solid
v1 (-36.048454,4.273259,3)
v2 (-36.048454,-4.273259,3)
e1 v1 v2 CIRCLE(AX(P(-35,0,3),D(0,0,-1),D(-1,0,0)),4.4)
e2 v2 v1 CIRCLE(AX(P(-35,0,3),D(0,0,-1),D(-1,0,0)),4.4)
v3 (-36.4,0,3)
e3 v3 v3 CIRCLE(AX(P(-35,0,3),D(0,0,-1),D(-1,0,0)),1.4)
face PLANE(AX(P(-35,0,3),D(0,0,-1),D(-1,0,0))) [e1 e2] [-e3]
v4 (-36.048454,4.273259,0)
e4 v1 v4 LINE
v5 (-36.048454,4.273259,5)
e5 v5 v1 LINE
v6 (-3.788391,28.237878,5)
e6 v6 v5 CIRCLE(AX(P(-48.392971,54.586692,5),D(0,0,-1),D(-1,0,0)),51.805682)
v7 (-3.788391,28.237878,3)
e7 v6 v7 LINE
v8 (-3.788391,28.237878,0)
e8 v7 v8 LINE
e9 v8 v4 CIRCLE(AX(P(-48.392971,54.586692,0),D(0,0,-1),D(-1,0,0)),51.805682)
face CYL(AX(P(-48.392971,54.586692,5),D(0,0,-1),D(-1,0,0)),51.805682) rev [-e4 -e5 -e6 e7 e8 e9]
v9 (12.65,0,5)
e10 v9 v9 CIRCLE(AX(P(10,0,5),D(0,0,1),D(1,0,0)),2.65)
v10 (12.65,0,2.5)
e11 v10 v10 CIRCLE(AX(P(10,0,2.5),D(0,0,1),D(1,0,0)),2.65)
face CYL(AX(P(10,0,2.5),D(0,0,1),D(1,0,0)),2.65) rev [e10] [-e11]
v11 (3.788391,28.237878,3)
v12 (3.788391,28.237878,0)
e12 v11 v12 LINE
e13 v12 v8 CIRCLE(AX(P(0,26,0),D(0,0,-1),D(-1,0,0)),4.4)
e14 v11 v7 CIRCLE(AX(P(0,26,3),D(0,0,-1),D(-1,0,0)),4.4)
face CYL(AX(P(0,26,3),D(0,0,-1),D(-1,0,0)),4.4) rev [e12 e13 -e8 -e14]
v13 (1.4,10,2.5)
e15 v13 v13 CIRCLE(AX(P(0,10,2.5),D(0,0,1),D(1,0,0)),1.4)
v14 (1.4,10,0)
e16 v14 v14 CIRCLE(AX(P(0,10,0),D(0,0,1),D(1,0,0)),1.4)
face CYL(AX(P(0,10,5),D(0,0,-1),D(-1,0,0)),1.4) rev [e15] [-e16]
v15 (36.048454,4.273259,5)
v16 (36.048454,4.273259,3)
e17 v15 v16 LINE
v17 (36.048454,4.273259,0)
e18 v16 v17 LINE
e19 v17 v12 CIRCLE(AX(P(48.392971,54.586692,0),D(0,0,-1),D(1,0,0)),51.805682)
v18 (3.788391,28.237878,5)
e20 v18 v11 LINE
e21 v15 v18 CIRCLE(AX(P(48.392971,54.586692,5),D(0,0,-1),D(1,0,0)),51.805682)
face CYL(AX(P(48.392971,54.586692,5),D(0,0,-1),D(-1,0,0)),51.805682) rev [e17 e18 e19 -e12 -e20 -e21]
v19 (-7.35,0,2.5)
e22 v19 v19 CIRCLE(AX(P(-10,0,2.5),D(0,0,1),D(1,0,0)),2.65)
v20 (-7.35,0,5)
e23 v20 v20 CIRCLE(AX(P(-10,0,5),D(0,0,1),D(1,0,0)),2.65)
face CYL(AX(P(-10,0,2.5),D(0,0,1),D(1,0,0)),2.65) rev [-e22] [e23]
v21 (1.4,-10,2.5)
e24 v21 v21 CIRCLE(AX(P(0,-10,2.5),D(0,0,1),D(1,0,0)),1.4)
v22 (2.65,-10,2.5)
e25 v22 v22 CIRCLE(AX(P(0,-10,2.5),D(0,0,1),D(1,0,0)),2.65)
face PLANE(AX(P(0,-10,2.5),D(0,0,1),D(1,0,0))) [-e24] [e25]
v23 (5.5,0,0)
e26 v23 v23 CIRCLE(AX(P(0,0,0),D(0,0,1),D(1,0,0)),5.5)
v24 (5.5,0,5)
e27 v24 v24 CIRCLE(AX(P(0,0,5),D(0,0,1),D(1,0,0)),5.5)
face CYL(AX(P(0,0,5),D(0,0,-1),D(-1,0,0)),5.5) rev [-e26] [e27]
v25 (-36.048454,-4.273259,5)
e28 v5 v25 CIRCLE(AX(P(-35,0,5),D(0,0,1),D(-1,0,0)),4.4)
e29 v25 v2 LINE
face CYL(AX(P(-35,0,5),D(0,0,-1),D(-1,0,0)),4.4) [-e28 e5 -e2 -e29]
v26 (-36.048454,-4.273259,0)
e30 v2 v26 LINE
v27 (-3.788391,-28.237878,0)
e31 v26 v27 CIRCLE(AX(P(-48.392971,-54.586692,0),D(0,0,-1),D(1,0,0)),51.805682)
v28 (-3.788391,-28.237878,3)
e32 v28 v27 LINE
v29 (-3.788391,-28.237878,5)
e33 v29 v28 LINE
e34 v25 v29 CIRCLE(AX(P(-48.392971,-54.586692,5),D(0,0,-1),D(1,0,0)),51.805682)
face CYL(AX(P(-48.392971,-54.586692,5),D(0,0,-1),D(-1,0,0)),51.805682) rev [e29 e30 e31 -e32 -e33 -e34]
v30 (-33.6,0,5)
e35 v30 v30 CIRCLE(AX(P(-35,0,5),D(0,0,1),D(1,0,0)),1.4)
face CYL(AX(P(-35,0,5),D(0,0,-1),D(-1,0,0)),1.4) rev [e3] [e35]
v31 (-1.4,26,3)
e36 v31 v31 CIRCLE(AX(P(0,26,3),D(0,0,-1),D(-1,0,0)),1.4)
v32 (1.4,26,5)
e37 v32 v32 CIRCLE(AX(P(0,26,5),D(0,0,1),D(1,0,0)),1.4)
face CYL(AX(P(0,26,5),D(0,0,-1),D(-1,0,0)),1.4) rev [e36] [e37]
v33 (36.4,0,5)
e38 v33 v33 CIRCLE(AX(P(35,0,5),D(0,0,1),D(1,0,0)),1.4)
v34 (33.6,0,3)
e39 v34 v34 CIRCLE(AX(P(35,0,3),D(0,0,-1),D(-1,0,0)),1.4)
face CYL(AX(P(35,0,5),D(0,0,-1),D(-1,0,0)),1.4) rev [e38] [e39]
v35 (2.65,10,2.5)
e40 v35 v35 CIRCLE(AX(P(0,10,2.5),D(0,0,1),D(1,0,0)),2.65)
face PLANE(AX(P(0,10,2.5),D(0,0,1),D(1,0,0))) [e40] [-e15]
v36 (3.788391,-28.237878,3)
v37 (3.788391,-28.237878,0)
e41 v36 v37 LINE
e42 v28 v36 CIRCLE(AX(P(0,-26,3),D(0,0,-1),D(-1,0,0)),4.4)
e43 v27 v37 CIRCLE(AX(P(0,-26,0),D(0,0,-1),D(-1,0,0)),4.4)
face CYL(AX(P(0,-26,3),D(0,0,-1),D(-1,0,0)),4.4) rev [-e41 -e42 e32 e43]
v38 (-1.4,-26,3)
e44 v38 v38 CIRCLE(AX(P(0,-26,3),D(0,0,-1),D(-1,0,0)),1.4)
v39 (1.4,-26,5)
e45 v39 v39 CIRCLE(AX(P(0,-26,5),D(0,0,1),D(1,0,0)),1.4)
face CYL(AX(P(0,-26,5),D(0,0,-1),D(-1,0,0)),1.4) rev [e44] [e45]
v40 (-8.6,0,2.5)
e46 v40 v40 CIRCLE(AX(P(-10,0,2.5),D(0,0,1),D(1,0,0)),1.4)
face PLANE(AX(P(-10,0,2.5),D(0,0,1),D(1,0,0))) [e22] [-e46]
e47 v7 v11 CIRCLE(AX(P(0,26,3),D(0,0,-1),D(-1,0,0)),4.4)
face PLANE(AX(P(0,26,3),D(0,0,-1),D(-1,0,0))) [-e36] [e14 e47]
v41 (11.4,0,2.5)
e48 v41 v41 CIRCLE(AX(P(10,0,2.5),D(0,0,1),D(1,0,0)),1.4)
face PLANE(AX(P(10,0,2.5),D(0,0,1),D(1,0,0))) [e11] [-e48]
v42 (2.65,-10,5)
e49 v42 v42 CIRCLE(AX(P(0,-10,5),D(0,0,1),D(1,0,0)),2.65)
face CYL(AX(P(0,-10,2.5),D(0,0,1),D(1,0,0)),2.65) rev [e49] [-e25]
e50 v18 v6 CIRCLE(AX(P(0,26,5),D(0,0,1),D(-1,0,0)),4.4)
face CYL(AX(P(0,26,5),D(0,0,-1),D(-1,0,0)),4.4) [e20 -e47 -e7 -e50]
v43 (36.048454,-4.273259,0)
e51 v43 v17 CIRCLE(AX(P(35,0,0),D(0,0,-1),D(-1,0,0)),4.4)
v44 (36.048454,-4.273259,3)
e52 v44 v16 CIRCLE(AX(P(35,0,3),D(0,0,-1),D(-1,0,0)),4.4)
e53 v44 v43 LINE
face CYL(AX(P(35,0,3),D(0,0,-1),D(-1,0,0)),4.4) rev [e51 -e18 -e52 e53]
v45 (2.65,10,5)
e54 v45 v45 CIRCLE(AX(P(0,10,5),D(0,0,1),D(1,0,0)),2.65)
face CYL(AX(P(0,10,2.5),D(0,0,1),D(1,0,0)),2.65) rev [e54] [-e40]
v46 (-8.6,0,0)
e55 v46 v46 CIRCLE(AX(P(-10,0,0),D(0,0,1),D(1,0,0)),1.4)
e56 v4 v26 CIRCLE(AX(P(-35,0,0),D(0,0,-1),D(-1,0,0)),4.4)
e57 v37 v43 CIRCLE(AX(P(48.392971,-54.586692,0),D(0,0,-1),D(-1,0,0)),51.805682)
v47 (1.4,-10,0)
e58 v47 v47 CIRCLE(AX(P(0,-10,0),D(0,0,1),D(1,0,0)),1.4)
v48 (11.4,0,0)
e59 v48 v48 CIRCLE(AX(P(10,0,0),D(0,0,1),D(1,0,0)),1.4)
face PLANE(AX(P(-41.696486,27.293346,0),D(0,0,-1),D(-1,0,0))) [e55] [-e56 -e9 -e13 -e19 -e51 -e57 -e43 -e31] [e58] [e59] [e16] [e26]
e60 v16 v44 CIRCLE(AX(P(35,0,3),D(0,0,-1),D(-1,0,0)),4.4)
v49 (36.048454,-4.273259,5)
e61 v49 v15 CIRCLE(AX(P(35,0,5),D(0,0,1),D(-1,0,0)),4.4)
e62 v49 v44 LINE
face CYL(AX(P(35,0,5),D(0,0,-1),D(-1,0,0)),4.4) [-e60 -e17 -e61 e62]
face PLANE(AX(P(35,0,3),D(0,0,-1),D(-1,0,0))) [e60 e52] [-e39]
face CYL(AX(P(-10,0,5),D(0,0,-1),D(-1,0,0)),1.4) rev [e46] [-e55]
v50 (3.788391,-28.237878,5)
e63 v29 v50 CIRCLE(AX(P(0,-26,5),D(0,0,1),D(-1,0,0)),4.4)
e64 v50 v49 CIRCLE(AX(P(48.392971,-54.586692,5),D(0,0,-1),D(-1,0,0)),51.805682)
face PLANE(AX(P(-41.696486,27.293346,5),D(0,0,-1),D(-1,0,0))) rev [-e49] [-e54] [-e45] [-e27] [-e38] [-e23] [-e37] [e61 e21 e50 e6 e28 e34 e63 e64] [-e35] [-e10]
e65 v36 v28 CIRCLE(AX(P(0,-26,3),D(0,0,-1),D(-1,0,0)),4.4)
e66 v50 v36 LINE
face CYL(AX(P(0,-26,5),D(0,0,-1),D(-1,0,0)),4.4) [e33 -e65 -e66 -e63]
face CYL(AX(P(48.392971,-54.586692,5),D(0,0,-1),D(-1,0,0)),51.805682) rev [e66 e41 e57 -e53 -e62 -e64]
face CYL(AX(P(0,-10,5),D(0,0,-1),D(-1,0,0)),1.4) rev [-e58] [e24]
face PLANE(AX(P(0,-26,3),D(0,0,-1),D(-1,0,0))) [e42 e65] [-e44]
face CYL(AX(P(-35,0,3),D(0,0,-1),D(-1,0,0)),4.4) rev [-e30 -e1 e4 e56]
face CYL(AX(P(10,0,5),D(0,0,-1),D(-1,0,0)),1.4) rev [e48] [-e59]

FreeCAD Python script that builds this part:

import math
import FreeCAD as App
import Part
import Sketcher
Q = App.Units.Quantity

doc = App.newDocument("Part")
body = doc.addObject("PartDesign::Body", "Body")

sketch1 = body.newObject("Sketcher::SketchObject", "Sketch")
sketch1.AttachmentSupport = (doc.getObject("XY_Plane"), [""])
sketch1.MapMode = "FlatFace"
sketch1.addGeometry(Part.ArcOfCircle(Part.Circle(App.Vector(0, 26, 0), App.Vector(0, 0, 1), 4.4), math.radians(31), math.radians(149)), False)
sketch1.addGeometry(Part.ArcOfCircle(Part.Circle(App.Vector(-48.4, 54.6, 0), App.Vector(0, 0, 1), 51.8), math.radians(-76), math.radians(-31)), False)
sketch1.addGeometry(Part.ArcOfCircle(Part.Circle(App.Vector(-35, 0, 0), App.Vector(0, 0, 1), 4.4), math.radians(104), math.radians(256)), False)
sketch1.addGeometry(Part.ArcOfCircle(Part.Circle(App.Vector(-48.4, -54.6, 0), App.Vector(0, 0, 1), 51.8), math.radians(31), math.radians(76)), False)
sketch1.addGeometry(Part.ArcOfCircle(Part.Circle(App.Vector(0, -26, 0), App.Vector(0, 0, 1), 4.4), math.radians(-149), math.radians(-31)), False)
sketch1.addGeometry(Part.ArcOfCircle(Part.Circle(App.Vector(48.4, -54.6, 0), App.Vector(0, 0, 1), 51.8), math.radians(104), math.radians(149)), False)
sketch1.addGeometry(Part.ArcOfCircle(Part.Circle(App.Vector(35, 0, 0), App.Vector(0, 0, 1), 4.4), math.radians(-76), math.radians(76)), False)
sketch1.addGeometry(Part.ArcOfCircle(Part.Circle(App.Vector(48.4, 54.6, 0), App.Vector(0, 0, 1), 51.8), math.radians(-149), math.radians(-104)), False)
sketch1.addGeometry(Part.Circle(App.Vector(0, -26, 0), App.Vector(0, 0, 1), 1.4), False)
sketch1.addGeometry(Part.Circle(App.Vector(0, -10, 0), App.Vector(0, 0, 1), 1.4), False)
sketch1.addGeometry(Part.Circle(App.Vector(35, 0, 0), App.Vector(0, 0, 1), 1.4), False)
sketch1.addGeometry(Part.Circle(App.Vector(10, 0, 0), App.Vector(0, 0, 1), 1.4), False)
sketch1.addGeometry(Part.Circle(App.Vector(0, 0, 0), App.Vector(0, 0, 1), 5.5), False)
sketch1.addGeometry(Part.Circle(App.Vector(0, 10, 0), App.Vector(0, 0, 1), 1.4), False)
sketch1.addGeometry(Part.Circle(App.Vector(0, 26, 0), App.Vector(0, 0, 1), 1.4), False)
sketch1.addGeometry(Part.Circle(App.Vector(-10, 0, 0), App.Vector(0, 0, 1), 1.4), False)
sketch1.addGeometry(Part.Circle(App.Vector(-35, 0, 0), App.Vector(0, 0, 1), 1.4), False)
sketch1.addConstraint(Sketcher.Constraint("Tangent", 0, 2, 1, 2))
sketch1.addConstraint(Sketcher.Constraint("Tangent", 1, 1, 2, 1))
sketch1.addConstraint(Sketcher.Constraint("Tangent", 2, 2, 3, 2))
sketch1.addConstraint(Sketcher.Constraint("Tangent", 3, 1, 4, 1))
sketch1.addConstraint(Sketcher.Constraint("Tangent", 4, 2, 5, 2))
sketch1.addConstraint(Sketcher.Constraint("Tangent", 5, 1, 6, 1))
sketch1.addConstraint(Sketcher.Constraint("Tangent", 6, 2, 7, 2))
sketch1.addConstraint(Sketcher.Constraint("Tangent", 7, 1, 0, 1))
sketch1.addConstraint(Sketcher.Constraint("Coincident", 12, 3, -1, 1))
sketch1.addConstraint(Sketcher.Constraint("Coincident", 8, 3, 4, 3))
sketch1.addConstraint(Sketcher.Constraint("Coincident", 10, 3, 6, 3))
sketch1.addConstraint(Sketcher.Constraint("Coincident", 14, 3, 0, 3))
sketch1.addConstraint(Sketcher.Constraint("Coincident", 16, 3, 2, 3))
sketch1.addConstraint(Sketcher.Constraint("Equal", 0, 2))
sketch1.addConstraint(Sketcher.Constraint("Equal", 1, 3))
sketch1.addConstraint(Sketcher.Constraint("Equal", 2, 4))
sketch1.addConstraint(Sketcher.Constraint("Equal", 3, 5))
sketch1.addConstraint(Sketcher.Constraint("Equal", 4, 6))
sketch1.addConstraint(Sketcher.Constraint("Equal", 5, 7))
sketch1.addConstraint(Sketcher.Constraint("Equal", 8, 9))
sketch1.addConstraint(Sketcher.Constraint("Equal", 9, 10))
sketch1.addConstraint(Sketcher.Constraint("Equal", 10, 11))
sketch1.addConstraint(Sketcher.Constraint("Equal", 11, 13))
sketch1.addConstraint(Sketcher.Constraint("Equal", 13, 14))
sketch1.addConstraint(Sketcher.Constraint("Equal", 14, 15))
sketch1.addConstraint(Sketcher.Constraint("Equal", 15, 16))
sketch1.addConstraint(Sketcher.Constraint("Symmetric", 0, 3, 4, 3, -1, 1))
sketch1.addConstraint(Sketcher.Constraint("Symmetric", 2, 3, 6, 3, -1, 1))
sketch1.addConstraint(Sketcher.Constraint("Symmetric", 9, 3, 13, 3, -1, 1))
sketch1.addConstraint(Sketcher.Constraint("Symmetric", 11, 3, 15, 3, -1, 1))
sketch1.addConstraint(Sketcher.Constraint("Symmetric", 3, 3, 5, 3, -2))
sketch1.addConstraint(Sketcher.Constraint("PointOnObject", 9, 3, -2))
sketch1.addConstraint(Sketcher.Constraint("PointOnObject", 11, 3, -1))
sketch1.addConstraint(Sketcher.Constraint("Diameter", 12, Q("11 mm")))
sketch1.addConstraint(Sketcher.Constraint("Diameter", 8, Q("2.8 mm")))
sketch1.addConstraint(Sketcher.Constraint("Radius", 0, Q("4.4 mm")))
sketch1.addConstraint(Sketcher.Constraint("DistanceY", -1, 1, 0, 3, Q("26 mm")))
sketch1.addConstraint(Sketcher.Constraint("DistanceX", 2, 3, -1, 1, Q("35 mm")))
sketch1.addConstraint(Sketcher.Constraint("DistanceY", 9, 3, -1, 1, Q("10 mm")))
sketch1.addConstraint(Sketcher.Constraint("DistanceX", -1, 1, 11, 3, Q("10 mm")))
sketch1.addConstraint(Sketcher.Constraint("Radius", 1, Q("51.805682 mm")))
pad1 = body.newObject("PartDesign::Pad", "Pad")
pad1.Profile = sketch1
pad1.Length = 5

sketch2 = body.newObject("Sketcher::SketchObject", "Sketch001")
sketch2.AttachmentSupport = (doc.getObject("XY_Plane"), [""])
sketch2.MapMode = "FlatFace"
sketch2.AttachmentOffset = App.Placement(App.Vector(0, 0, 5), App.Rotation())
sketch2.addGeometry(Part.Circle(App.Vector(0, 10, 0), App.Vector(0, 0, 1), 2.6), False)
sketch2.addGeometry(Part.Circle(App.Vector(10, 0, 0), App.Vector(0, 0, 1), 2.6), False)
sketch2.addGeometry(Part.Circle(App.Vector(0, -10, 0), App.Vector(0, 0, 1), 2.6), False)
sketch2.addGeometry(Part.Circle(App.Vector(-10, 0, 0), App.Vector(0, 0, 1), 2.6), False)
sketch2.addConstraint(Sketcher.Constraint("Equal", 0, 1))
sketch2.addConstraint(Sketcher.Constraint("Equal", 1, 2))
sketch2.addConstraint(Sketcher.Constraint("Equal", 2, 3))
sketch2.addConstraint(Sketcher.Constraint("Symmetric", 0, 3, 2, 3, -1, 1))
sketch2.addConstraint(Sketcher.Constraint("Symmetric", 1, 3, 3, 3, -1, 1))
sketch2.addConstraint(Sketcher.Constraint("PointOnObject", 0, 3, -2))
sketch2.addConstraint(Sketcher.Constraint("PointOnObject", 1, 3, -1))
sketch2.addConstraint(Sketcher.Constraint("Diameter", 0, Q("5.3 mm")))
sketch2.addConstraint(Sketcher.Constraint("DistanceY", -1, 1, 0, 3, Q("10 mm")))
sketch2.addConstraint(Sketcher.Constraint("DistanceX", -1, 1, 1, 3, Q("10 mm")))
pocket1 = body.newObject("PartDesign::Pocket", "Pocket")
pocket1.Profile = sketch2
pocket1.Length = 2.5

sketch3 = body.newObject("Sketcher::SketchObject", "Sketch002")
sketch3.AttachmentSupport = (doc.getObject("XY_Plane"), [""])
sketch3.MapMode = "FlatFace"
sketch3.addGeometry(Part.Circle(App.Vector(0, 26, 0), App.Vector(0, 0, 1), 4.4), False)
sketch3.addGeometry(Part.Circle(App.Vector(-35, 0, 0), App.Vector(0, 0, 1), 4.4), False)
sketch3.addGeometry(Part.Circle(App.Vector(0, -26, 0), App.Vector(0, 0, 1), 4.4), False)
sketch3.addGeometry(Part.Circle(App.Vector(35, 0, 0), App.Vector(0, 0, 1), 4.4), False)
sketch3.addConstraint(Sketcher.Constraint("Equal", 0, 1))
sketch3.addConstraint(Sketcher.Constraint("Equal", 1, 2))
sketch3.addConstraint(Sketcher.Constraint("Equal", 2, 3))
sketch3.addConstraint(Sketcher.Constraint("Symmetric", 0, 3, 2, 3, -1, 1))
sketch3.addConstraint(Sketcher.Constraint("Symmetric", 1, 3, 3, 3, -1, 1))
sketch3.addConstraint(Sketcher.Constraint("PointOnObject", 0, 3, -2))
sketch3.addConstraint(Sketcher.Constraint("PointOnObject", 1, 3, -1))
sketch3.addConstraint(Sketcher.Constraint("Diameter", 0, Q("8.8 mm")))
sketch3.addConstraint(Sketcher.Constraint("DistanceY", -1, 1, 0, 3, Q("26 mm")))
sketch3.addConstraint(Sketcher.Constraint("DistanceX", 1, 3, -1, 1, Q("35 mm")))
pocket2 = body.newObject("PartDesign::Pocket", "Pocket001")
pocket2.Profile = sketch3
pocket2.Length = 3
pocket2.Reversed = True

doc.recompute()
